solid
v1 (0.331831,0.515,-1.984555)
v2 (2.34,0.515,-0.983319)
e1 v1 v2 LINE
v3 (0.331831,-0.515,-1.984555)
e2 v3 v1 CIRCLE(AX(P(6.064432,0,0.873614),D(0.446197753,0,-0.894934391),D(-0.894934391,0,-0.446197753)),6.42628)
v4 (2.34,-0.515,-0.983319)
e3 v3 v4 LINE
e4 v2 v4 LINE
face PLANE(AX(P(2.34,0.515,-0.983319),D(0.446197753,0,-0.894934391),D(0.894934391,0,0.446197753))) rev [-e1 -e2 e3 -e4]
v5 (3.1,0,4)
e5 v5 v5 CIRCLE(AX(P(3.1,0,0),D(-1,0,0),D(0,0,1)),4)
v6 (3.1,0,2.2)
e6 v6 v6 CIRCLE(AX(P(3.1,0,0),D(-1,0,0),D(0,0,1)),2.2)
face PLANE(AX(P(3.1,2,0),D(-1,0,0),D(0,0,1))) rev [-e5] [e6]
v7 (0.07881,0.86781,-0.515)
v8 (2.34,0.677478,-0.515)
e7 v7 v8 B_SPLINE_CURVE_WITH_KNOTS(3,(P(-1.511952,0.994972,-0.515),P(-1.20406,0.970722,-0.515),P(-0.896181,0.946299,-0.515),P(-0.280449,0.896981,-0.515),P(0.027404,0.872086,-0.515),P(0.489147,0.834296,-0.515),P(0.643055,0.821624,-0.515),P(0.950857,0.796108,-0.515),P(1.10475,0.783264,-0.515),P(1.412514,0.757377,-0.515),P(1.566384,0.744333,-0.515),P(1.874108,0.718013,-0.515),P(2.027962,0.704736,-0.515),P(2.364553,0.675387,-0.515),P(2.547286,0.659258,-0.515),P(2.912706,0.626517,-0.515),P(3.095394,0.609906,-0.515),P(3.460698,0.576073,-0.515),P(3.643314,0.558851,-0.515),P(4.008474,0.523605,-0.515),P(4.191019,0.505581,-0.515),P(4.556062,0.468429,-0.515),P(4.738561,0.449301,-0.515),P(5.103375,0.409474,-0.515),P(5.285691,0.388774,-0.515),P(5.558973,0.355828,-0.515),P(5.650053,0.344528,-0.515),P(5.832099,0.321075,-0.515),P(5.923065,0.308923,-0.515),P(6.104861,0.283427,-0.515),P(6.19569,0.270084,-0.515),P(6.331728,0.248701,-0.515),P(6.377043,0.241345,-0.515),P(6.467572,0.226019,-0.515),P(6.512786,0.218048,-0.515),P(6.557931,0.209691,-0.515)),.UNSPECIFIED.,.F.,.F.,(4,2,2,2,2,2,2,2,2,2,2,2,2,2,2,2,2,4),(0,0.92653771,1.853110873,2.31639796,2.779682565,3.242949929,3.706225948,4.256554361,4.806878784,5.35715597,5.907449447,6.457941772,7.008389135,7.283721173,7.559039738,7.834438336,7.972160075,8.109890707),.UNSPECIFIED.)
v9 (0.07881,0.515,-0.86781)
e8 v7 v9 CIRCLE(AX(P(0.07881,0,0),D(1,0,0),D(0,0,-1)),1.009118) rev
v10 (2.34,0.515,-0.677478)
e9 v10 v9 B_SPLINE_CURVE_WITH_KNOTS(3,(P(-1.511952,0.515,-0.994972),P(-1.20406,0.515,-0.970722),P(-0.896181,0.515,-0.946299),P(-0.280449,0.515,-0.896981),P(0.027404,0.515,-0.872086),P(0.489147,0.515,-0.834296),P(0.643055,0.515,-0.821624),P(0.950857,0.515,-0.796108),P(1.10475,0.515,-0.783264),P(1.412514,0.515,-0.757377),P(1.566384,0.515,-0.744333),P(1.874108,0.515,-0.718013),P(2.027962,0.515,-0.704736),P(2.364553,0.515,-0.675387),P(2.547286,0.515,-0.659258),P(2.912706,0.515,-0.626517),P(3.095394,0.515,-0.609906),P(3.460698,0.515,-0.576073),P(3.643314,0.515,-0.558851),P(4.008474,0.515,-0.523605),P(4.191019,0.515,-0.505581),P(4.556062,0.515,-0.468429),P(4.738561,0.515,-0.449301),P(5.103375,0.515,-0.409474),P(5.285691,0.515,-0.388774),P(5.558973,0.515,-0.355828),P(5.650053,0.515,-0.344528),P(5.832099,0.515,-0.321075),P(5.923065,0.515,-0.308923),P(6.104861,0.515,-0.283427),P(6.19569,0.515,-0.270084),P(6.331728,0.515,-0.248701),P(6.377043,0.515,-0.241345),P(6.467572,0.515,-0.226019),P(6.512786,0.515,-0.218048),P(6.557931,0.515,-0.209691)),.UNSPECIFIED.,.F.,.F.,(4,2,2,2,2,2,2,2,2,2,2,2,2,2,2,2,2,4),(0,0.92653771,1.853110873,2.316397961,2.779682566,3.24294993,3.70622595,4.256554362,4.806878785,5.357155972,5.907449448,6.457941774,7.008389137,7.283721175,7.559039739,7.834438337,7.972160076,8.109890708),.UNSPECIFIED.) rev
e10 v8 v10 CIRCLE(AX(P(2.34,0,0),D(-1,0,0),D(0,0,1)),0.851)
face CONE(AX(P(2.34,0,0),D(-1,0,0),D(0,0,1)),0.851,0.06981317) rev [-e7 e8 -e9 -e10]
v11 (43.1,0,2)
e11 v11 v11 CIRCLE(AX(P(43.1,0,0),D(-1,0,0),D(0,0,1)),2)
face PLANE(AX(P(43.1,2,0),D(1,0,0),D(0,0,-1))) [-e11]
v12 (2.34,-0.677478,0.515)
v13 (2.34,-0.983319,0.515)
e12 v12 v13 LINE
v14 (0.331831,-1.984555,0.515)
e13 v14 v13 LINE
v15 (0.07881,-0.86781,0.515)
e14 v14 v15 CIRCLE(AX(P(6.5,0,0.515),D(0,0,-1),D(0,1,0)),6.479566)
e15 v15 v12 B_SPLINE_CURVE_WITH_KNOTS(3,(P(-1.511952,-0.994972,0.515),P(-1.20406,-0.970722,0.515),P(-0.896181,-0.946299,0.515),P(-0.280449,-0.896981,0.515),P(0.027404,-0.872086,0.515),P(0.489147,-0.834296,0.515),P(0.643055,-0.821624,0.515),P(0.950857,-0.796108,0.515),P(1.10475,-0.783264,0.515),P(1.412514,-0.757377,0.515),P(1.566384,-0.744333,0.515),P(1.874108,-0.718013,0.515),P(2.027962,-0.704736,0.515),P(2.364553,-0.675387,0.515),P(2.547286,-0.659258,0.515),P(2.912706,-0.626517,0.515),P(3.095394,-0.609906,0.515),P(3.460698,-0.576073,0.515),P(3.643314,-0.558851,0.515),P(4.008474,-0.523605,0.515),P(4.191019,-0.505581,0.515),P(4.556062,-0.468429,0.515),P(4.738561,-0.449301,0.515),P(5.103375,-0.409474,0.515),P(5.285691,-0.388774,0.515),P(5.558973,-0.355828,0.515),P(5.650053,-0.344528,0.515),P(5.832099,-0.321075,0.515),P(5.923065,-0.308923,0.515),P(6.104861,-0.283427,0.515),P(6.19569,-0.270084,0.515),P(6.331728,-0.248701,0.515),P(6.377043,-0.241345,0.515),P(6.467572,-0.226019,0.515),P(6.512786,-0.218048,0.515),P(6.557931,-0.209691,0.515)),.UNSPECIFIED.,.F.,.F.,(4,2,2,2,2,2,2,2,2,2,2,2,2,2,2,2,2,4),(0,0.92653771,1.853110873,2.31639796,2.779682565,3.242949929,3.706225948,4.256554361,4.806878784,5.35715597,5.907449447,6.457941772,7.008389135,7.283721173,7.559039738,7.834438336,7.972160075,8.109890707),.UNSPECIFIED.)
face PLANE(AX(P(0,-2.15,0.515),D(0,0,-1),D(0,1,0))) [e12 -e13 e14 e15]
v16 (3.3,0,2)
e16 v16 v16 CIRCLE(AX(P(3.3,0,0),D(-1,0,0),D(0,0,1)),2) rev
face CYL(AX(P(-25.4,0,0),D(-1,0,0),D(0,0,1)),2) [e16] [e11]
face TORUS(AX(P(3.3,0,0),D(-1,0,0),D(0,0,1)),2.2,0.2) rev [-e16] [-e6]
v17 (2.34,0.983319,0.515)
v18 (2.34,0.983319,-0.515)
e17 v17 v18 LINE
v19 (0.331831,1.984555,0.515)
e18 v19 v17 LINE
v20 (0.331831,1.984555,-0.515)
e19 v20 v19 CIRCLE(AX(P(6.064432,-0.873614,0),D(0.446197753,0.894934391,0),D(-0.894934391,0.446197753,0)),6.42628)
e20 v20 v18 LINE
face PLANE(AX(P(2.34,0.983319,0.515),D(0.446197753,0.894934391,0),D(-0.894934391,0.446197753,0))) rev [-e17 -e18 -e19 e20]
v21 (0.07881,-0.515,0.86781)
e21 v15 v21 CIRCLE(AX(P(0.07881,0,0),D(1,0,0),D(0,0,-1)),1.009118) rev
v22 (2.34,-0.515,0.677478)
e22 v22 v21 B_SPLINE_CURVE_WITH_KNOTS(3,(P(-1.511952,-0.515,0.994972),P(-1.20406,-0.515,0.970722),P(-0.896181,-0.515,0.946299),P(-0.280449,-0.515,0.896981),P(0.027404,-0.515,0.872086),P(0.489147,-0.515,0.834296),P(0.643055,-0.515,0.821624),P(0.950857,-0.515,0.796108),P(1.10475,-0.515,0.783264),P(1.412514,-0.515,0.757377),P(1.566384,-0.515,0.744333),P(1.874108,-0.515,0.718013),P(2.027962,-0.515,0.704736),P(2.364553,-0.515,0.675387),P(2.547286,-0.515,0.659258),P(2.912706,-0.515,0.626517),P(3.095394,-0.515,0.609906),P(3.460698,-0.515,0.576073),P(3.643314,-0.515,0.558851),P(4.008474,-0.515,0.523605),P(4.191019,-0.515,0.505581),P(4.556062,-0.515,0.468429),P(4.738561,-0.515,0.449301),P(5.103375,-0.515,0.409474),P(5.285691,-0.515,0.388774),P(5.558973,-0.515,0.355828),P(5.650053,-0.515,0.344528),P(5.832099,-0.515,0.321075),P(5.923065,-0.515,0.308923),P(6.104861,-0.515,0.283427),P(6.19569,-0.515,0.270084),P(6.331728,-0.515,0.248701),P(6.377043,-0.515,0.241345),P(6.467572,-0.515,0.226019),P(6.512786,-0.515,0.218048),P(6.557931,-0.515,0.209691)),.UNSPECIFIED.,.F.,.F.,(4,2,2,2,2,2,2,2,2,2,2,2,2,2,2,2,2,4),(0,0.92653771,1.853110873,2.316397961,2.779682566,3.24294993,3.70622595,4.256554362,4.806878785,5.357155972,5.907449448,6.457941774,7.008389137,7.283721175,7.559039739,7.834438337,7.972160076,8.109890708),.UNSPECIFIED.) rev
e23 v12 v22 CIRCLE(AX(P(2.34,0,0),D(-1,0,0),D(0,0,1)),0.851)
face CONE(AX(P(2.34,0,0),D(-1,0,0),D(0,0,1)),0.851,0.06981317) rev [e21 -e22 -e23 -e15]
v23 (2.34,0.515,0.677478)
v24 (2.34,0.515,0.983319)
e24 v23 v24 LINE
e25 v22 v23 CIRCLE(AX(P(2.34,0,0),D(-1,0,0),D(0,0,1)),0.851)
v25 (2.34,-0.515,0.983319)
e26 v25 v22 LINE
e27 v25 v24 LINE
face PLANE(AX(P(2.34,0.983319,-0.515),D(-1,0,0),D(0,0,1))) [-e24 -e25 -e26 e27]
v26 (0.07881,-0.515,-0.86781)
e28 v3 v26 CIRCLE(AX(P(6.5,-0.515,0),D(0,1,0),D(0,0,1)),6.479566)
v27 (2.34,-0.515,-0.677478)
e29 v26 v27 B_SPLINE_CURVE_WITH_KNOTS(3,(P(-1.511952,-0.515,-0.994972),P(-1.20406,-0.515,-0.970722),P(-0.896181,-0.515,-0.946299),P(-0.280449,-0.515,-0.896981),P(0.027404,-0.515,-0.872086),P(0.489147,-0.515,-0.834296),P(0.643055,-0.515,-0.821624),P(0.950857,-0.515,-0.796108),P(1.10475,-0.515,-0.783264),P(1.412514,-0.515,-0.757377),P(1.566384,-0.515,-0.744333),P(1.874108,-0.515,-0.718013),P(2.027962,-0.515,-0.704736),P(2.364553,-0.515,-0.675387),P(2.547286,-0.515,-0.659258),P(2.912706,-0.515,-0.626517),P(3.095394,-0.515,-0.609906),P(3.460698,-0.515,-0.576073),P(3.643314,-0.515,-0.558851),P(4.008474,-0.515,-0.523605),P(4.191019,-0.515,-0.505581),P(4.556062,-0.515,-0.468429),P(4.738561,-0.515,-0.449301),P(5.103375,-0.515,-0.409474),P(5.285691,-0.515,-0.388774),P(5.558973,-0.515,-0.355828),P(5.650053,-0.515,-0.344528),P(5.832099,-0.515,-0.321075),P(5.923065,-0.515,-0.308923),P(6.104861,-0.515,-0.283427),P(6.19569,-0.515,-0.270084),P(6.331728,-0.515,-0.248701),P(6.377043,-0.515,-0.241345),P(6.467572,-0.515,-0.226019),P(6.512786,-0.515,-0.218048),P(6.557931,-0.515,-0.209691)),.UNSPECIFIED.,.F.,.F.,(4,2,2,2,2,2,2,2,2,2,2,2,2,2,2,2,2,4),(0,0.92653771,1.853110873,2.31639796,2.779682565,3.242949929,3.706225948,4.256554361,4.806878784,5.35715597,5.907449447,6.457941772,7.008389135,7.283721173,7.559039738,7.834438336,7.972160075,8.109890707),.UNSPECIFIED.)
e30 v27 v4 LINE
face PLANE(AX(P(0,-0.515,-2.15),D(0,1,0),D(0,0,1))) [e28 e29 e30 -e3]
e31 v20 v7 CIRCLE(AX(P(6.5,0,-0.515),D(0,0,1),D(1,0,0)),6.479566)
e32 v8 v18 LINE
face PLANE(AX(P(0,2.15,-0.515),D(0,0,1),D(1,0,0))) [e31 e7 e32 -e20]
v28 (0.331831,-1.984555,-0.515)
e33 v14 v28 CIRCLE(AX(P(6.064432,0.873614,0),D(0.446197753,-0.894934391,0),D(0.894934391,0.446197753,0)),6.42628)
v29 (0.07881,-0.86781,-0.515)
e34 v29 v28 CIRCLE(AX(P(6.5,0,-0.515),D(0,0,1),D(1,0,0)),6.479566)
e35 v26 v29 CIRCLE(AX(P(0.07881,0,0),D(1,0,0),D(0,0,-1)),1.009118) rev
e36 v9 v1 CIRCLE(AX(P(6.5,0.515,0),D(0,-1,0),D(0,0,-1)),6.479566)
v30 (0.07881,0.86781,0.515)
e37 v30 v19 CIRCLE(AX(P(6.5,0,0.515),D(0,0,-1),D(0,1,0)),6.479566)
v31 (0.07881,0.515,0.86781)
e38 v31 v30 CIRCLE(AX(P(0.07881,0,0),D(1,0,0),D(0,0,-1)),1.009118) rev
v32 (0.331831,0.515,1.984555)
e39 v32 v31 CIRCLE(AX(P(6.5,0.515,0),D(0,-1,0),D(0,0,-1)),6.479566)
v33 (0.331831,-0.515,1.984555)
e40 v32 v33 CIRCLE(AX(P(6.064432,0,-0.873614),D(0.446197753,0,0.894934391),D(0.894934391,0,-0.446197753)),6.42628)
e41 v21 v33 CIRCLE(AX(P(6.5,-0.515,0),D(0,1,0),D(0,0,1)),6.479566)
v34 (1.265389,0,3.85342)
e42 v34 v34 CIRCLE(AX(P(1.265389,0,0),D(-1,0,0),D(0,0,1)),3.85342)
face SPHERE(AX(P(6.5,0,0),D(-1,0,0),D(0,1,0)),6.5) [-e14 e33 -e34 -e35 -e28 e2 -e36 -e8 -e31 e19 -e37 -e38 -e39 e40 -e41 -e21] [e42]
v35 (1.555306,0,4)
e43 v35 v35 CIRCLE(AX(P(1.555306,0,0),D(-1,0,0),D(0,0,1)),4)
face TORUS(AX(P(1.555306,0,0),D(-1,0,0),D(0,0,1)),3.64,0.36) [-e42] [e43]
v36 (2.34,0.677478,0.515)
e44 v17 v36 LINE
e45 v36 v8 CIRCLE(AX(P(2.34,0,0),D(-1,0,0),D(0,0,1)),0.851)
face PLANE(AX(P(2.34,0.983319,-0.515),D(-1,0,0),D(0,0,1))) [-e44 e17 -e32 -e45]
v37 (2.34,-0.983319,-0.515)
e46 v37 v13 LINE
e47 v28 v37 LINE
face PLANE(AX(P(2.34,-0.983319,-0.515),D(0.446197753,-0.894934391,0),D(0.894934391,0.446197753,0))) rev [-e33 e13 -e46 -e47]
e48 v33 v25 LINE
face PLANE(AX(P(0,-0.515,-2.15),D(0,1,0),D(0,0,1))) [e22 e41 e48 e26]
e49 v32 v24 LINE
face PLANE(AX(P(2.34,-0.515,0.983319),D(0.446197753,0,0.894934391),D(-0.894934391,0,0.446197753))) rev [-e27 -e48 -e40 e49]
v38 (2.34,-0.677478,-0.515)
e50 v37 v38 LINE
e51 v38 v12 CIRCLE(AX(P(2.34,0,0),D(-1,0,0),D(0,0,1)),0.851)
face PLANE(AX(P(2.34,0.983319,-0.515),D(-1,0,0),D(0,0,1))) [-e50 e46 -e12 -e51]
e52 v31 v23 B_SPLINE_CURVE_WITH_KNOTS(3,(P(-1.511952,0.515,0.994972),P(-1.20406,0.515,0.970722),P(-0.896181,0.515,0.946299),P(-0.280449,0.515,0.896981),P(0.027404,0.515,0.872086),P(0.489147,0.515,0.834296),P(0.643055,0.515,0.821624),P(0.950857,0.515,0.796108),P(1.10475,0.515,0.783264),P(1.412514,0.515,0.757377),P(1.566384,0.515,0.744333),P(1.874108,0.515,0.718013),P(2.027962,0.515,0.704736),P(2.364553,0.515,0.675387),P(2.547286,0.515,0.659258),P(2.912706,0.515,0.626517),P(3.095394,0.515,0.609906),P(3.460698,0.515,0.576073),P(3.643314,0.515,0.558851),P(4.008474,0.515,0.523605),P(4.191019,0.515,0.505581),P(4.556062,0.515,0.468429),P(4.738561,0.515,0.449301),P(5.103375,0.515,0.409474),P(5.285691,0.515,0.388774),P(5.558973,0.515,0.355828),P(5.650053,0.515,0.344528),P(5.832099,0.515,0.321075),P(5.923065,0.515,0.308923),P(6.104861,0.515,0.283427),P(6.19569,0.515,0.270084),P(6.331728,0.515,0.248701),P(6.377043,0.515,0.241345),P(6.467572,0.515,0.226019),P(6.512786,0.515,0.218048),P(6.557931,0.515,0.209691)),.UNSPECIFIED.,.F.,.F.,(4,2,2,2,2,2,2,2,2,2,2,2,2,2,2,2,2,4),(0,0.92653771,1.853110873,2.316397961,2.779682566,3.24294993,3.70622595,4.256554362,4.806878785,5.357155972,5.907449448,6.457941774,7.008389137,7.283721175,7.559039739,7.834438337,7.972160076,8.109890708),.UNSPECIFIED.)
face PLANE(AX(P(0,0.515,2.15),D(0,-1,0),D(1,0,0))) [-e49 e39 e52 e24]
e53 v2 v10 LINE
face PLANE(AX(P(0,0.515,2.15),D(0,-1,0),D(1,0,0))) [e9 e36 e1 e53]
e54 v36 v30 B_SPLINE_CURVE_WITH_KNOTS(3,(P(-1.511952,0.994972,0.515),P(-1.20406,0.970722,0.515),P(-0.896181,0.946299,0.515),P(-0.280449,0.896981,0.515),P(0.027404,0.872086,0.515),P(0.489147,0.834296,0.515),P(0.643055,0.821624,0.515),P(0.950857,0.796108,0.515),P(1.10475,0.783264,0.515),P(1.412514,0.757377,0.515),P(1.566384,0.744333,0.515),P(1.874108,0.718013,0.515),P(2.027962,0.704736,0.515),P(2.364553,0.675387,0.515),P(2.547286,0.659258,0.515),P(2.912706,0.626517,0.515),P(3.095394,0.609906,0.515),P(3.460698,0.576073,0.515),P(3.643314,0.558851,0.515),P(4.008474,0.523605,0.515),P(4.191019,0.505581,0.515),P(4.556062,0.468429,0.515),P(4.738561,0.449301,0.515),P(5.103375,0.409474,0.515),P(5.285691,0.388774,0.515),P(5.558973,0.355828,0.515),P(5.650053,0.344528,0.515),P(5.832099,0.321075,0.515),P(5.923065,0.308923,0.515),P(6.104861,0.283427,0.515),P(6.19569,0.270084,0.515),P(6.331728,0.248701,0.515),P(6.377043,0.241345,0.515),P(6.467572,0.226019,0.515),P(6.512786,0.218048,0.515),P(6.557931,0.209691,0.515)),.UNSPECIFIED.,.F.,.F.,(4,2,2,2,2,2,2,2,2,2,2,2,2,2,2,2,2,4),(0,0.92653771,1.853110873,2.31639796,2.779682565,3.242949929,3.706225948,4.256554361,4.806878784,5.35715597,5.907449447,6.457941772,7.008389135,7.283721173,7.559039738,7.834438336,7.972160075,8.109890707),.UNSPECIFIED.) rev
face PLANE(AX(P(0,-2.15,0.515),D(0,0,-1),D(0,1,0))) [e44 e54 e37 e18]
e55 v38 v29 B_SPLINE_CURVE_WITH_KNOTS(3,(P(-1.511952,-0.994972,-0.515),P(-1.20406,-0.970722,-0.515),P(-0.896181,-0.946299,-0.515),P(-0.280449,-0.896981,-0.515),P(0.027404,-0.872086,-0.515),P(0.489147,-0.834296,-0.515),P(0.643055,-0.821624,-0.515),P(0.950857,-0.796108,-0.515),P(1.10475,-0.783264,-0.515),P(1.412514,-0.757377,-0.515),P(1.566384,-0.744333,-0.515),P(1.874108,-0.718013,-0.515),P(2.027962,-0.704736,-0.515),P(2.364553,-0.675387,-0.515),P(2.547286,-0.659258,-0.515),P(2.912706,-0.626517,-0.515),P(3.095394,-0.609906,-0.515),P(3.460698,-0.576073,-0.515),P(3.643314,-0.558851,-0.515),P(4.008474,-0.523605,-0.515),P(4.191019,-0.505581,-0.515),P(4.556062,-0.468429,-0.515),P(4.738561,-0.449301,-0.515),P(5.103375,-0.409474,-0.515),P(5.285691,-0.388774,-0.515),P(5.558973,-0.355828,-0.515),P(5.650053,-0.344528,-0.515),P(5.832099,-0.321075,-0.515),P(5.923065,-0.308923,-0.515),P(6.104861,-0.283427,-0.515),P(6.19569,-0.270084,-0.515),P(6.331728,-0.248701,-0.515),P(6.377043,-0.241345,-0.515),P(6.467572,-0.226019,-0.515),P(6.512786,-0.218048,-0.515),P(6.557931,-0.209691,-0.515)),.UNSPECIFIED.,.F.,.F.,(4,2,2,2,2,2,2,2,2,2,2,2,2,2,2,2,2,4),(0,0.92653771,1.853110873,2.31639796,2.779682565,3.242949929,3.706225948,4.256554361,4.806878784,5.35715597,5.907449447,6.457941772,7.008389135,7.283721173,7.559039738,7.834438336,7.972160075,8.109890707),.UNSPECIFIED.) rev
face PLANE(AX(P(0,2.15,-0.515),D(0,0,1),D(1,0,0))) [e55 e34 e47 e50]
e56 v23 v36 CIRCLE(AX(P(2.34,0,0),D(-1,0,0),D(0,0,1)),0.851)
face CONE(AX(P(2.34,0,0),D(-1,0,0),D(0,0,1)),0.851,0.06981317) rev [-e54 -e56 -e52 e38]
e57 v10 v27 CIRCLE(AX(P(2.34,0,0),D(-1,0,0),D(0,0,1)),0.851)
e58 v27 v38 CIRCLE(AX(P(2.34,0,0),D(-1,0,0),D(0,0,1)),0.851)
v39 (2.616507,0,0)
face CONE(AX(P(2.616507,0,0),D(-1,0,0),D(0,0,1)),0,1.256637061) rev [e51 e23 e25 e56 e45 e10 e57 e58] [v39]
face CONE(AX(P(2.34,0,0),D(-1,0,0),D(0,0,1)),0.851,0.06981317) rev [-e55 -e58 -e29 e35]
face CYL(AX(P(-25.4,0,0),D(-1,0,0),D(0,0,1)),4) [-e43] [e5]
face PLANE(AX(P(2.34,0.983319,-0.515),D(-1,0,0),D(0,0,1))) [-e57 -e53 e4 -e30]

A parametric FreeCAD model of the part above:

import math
import FreeCAD as App
import Part
import Sketcher
from FreeCAD import Vector
Q = App.Units.Quantity


def edges_at(feature, points):
    """Names of the edges that pass closest to the given points."""
    edges = feature.Shape.Edges
    near = lambda p: min(range(len(edges)), key=lambda i: edges[i].distToShape(Part.Vertex(*p))[0])
    return sorted({f"Edge{near(p) + 1}" for p in points})


def add_polygon(sketch, points):
    """Adds a closed chain of lines whose ends are joined by coincident constraints."""
    first, n = sketch.GeometryCount, len(points)
    for a, b in zip(points, points[1:] + points[:1]):
        sketch.addGeometry(Part.LineSegment(App.Vector(*a, 0), App.Vector(*b, 0)), False)
    for i in range(n):
        sketch.addConstraint(Sketcher.Constraint("Coincident", first + i, 2, first + (i + 1) % n, 1))

doc = App.newDocument("Part")
body = doc.addObject("PartDesign::Body", "Body")

sketch1 = body.newObject("Sketcher::SketchObject", "Sketch")
sketch1.AttachmentSupport = (doc.getObject("XY_Plane"), [""])
sketch1.MapMode = "FlatFace"
sketch1.addGeometry(Part.LineSegment(Vector(3.1, 2, 0), Vector(3.1, 4, 0)), False)
sketch1.addGeometry(Part.LineSegment(Vector(3.1, 4, 0), Vector(1.555306, 4, 0)), False)
sketch1.addGeometry(Part.ArcOfCircle(Part.Circle(Vector(1.555306, 3.64, 0), Vector(0, 0, 1), 0.36), math.radians(90), math.radians(143.641633)), False)
sketch1.addGeometry(Part.ArcOfCircle(Part.Circle(Vector(6.5, 0, 0), Vector(0, 0, 1), 6.5), math.radians(143.641632), math.radians(180)), False)
sketch1.addGeometry(Part.LineSegment(Vector(0, 0, 0), Vector(43.1, 0, 0)), False)
sketch1.addGeometry(Part.LineSegment(Vector(43.1, 0, 0), Vector(43.1, 2, 0)), False)
sketch1.addGeometry(Part.LineSegment(Vector(43.1, 2, 0), Vector(3.1, 2, 0)), False)
sketch1.addConstraint(Sketcher.Constraint("Coincident", 0, 2, 1, 1))
sketch1.addConstraint(Sketcher.Constraint("Tangent", 1, 2, 2, 1))
sketch1.addConstraint(Sketcher.Constraint("Tangent", 2, 2, 3, 1))
sketch1.addConstraint(Sketcher.Constraint("Coincident", 3, 2, 4, 1))
sketch1.addConstraint(Sketcher.Constraint("Coincident", 4, 2, 5, 1))
sketch1.addConstraint(Sketcher.Constraint("Coincident", 5, 2, 6, 1))
sketch1.addConstraint(Sketcher.Constraint("Coincident", 6, 2, 0, 1))
sketch1.addConstraint(Sketcher.Constraint("Vertical", 0))
sketch1.addConstraint(Sketcher.Constraint("Horizontal", 1))
sketch1.addConstraint(Sketcher.Constraint("Horizontal", 4))
sketch1.addConstraint(Sketcher.Constraint("Vertical", 5))
sketch1.addConstraint(Sketcher.Constraint("Horizontal", 6))
sketch1.addConstraint(Sketcher.Constraint("Coincident", 3, 2, -1, 1))
sketch1.addConstraint(Sketcher.Constraint("PointOnObject", 3, 3, -1))
sketch1.addConstraint(Sketcher.Constraint("Equal", 0, 5))
sketch1.addConstraint(Sketcher.Constraint("Radius", 3, Q("6.5 mm")))
sketch1.addConstraint(Sketcher.Constraint("DistanceX", 6, 2, 6, 1, Q("40 mm")))
sketch1.addConstraint(Sketcher.Constraint("DistanceY", 0, 1, 0, 2, Q("2 mm")))
sketch1.addConstraint(Sketcher.Constraint("Radius", 2, Q("0.36 mm")))
sketch1.addConstraint(Sketcher.Constraint("DistanceX", 4, 1, 4, 2, Q("43.1 mm")))
revolution = body.newObject("PartDesign::Revolution", "Revolution")
revolution.Profile = sketch1
revolution.ReferenceAxis = (sketch1, ["H_Axis"])
revolution.Angle = 360
doc.recompute()

fillet = body.newObject("PartDesign::Fillet", "Fillet")
fillet.Base = (revolution, edges_at(revolution, [(3.1, -2, 0)]))
fillet.Radius = 0.2

sketch2 = body.newObject("Sketcher::SketchObject", "Sketch001")
sketch2.AttachmentSupport = (doc.getObject("YZ_Plane"), [""])
sketch2.MapMode = "FlatFace"
add_polygon(sketch2, [(2.15, 0.515), (-2.15, 0.515), (-2.15, -0.515), (2.15, -0.515)])
sketch2.addConstraint(Sketcher.Constraint("Horizontal", 0))
sketch2.addConstraint(Sketcher.Constraint("Vertical", 1))
sketch2.addConstraint(Sketcher.Constraint("Horizontal", 2))
sketch2.addConstraint(Sketcher.Constraint("Vertical", 3))
sketch2.addConstraint(Sketcher.Constraint("Symmetric", 0, 2, 2, 2, -1, 1))
sketch2.addConstraint(Sketcher.Constraint("DistanceX", 0, 2, 0, 1, Q("4.3 mm")))
sketch2.addConstraint(Sketcher.Constraint("DistanceY", 1, 2, 1, 1, Q("1.03 mm")))

sketch3 = body.newObject("Sketcher::SketchObject", "Sketch002")
sketch3.AttachmentSupport = (doc.getObject("YZ_Plane"), [""])
sketch3.MapMode = "FlatFace"
sketch3.AttachmentOffset = App.Placement(Vector(0, 0, 2.34), App.Rotation())
add_polygon(sketch3, [(0.983319, 0.515), (-0.983319, 0.515), (-0.983319, -0.515), (0.983319, -0.515)])
sketch3.addConstraint(Sketcher.Constraint("Horizontal", 0))
sketch3.addConstraint(Sketcher.Constraint("Vertical", 1))
sketch3.addConstraint(Sketcher.Constraint("Horizontal", 2))
sketch3.addConstraint(Sketcher.Constraint("Vertical", 3))
sketch3.addConstraint(Sketcher.Constraint("Symmetric", 0, 2, 2, 2, -1, 1))
sketch3.addConstraint(Sketcher.Constraint("DistanceY", 1, 2, 1, 1, Q("1.03 mm")))
sketch3.addConstraint(Sketcher.Constraint("DistanceX", 0, 2, 0, 1, Q("1.966638 mm")))

subtractiveloft = body.newObject("PartDesign::SubtractiveLoft", "SubtractiveLoft")
subtractiveloft.Profile = sketch2
subtractiveloft.Sections = [sketch3]
doc.recompute()

polarpattern = body.newObject("PartDesign::PolarPattern", "PolarPattern")
polarpattern.Originals = [subtractiveloft]
polarpattern.Axis = (doc.getObject("X_Axis"), [""])
polarpattern.Angle = 90
polarpattern.Occurrences = 2
body.Tip = polarpattern

sketch4 = body.newObject("Sketcher::SketchObject", "Sketch003")
sketch4.AttachmentSupport = (doc.getObject("XY_Plane"), [""])
sketch4.MapMode = "FlatFace"
add_polygon(sketch4, [(0, 1.014629), (0, 0), (2.616507, 0), (2.34, 0.851)])
sketch4.addConstraint(Sketcher.Constraint("Vertical", 0))
sketch4.addConstraint(Sketcher.Constraint("Horizontal", 1))
sketch4.addConstraint(Sketcher.Constraint("Coincident", 0, 2, -1, 1))
sketch4.addConstraint(Sketcher.Constraint("Angle", 2, Q("108 deg")))
sketch4.addConstraint(Sketcher.Constraint("Angle", 3, Q("176 deg")))
sketch4.addConstraint(Sketcher.Constraint("DistanceX", -1, 1, 2, 2, Q("2.34 mm")))
sketch4.addConstraint(Sketcher.Constraint("DistanceY", -1, 1, 2, 2, Q("0.851 mm")))
groove = body.newObject("PartDesign::Groove", "Groove")
groove.Profile = sketch4
groove.ReferenceAxis = (sketch4, ["H_Axis"])
groove.Angle = 360

doc.recompute()
